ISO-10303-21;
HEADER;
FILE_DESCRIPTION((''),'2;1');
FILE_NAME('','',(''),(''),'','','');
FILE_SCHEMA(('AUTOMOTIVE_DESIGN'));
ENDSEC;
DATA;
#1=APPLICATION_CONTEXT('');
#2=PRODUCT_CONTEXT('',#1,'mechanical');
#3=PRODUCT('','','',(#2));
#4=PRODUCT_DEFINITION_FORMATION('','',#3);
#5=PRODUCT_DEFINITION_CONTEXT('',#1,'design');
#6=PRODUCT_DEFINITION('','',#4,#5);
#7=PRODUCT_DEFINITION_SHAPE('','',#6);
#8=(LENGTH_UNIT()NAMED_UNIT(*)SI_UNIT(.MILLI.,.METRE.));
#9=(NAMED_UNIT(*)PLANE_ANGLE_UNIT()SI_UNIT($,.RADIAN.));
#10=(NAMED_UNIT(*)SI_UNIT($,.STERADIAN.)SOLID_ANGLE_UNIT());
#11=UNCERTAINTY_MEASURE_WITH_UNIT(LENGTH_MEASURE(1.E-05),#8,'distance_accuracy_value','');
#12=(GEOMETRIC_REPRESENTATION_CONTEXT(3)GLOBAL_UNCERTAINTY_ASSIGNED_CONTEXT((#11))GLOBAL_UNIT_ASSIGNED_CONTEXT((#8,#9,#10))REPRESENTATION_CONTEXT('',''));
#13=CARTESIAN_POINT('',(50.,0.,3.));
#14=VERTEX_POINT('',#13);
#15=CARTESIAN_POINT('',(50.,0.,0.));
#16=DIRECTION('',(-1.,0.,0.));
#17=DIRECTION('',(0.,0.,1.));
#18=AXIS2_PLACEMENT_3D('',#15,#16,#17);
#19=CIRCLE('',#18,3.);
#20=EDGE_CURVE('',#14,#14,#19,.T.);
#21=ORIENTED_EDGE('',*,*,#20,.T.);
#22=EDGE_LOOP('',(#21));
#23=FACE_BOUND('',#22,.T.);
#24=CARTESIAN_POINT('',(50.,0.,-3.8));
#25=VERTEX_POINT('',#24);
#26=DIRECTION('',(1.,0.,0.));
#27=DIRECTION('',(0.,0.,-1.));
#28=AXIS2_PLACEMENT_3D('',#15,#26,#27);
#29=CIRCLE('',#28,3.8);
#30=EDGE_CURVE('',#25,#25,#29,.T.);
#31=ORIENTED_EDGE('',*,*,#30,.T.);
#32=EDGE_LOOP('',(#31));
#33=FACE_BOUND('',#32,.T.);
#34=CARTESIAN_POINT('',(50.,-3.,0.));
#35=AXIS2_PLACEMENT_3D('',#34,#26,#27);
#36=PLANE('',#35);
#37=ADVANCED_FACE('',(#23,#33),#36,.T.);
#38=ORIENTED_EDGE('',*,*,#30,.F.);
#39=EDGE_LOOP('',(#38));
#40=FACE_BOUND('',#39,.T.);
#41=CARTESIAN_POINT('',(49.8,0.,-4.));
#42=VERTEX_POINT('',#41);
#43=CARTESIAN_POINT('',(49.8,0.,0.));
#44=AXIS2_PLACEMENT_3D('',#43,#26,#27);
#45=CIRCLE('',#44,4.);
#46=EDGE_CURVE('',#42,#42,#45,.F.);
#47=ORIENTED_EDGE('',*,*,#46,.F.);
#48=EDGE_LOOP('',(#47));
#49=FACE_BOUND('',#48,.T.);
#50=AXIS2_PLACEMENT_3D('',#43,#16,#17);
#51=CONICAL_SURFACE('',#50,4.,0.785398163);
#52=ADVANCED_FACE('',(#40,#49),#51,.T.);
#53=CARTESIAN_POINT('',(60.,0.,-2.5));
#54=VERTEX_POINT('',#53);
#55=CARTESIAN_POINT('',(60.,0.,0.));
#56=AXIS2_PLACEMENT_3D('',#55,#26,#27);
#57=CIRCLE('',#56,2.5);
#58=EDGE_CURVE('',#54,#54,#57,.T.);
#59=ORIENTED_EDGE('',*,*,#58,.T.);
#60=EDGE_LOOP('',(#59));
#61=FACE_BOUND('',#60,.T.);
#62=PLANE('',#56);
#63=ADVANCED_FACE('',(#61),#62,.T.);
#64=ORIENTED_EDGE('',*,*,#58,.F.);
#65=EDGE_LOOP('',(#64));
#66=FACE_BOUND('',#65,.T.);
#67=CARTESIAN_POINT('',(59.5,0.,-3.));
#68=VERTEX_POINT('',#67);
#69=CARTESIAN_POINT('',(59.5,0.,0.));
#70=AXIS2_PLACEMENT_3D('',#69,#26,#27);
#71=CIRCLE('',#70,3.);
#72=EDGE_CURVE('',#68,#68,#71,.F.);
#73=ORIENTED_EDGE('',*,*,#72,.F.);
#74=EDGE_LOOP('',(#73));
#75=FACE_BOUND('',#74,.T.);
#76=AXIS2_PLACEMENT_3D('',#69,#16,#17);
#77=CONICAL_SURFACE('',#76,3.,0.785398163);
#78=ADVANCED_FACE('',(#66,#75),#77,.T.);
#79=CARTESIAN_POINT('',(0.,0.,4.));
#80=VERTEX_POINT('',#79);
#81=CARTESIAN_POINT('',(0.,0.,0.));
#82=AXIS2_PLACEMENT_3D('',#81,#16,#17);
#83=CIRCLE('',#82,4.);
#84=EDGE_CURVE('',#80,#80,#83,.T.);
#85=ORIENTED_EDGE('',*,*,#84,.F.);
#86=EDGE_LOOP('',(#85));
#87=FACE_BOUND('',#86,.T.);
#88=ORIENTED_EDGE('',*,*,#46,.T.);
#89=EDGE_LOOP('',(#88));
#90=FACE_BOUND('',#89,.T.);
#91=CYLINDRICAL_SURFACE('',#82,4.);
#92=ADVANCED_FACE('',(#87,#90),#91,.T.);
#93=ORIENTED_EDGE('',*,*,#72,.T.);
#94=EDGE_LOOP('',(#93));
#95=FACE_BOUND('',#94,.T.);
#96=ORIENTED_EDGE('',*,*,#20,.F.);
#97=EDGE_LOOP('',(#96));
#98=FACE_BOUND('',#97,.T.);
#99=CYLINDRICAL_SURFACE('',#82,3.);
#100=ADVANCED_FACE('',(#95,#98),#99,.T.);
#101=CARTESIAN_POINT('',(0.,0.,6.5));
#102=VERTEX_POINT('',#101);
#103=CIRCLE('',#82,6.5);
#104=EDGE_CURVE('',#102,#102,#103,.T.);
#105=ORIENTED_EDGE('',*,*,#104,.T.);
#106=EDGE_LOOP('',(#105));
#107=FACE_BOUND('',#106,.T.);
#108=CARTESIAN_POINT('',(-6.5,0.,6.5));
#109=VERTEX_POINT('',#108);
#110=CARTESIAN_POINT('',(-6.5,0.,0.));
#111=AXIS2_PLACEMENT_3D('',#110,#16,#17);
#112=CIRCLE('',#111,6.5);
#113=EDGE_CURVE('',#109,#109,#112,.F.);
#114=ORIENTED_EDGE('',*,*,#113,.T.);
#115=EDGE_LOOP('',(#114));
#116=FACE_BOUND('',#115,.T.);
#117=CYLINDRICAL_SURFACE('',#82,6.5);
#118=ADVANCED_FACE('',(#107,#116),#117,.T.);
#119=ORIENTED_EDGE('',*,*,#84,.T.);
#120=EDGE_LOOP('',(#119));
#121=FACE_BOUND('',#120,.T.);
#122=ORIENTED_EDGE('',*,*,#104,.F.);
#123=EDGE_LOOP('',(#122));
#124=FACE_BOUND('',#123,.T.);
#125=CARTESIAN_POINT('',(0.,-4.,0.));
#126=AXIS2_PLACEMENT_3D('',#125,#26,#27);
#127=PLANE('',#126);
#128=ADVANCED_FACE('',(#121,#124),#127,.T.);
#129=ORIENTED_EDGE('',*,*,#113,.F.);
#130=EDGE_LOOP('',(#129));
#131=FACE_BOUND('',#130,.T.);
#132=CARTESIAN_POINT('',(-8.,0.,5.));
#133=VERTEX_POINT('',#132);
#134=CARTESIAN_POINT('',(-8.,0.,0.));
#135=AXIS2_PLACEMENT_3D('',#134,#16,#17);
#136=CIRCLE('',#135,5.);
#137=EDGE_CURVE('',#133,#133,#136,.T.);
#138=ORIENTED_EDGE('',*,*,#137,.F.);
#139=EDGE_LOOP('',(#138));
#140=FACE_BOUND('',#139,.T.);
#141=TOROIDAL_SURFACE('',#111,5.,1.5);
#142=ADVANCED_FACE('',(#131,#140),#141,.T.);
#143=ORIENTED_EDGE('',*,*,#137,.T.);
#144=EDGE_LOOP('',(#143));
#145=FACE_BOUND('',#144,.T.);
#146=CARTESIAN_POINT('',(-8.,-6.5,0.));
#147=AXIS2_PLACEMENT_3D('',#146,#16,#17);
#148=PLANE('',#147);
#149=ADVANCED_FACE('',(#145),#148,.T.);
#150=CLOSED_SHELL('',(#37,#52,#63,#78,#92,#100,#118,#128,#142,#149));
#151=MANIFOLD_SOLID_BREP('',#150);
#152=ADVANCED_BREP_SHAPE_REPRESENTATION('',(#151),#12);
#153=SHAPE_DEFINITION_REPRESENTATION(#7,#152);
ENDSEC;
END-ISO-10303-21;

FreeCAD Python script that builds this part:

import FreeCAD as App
import Part
import Sketcher

V = App.Vector
Q = App.Units.Quantity


def edges_at(feature, points):
    """Names of the edges that pass closest to the given points."""
    edges = feature.Shape.Edges
    near = lambda p: min(range(len(edges)), key=lambda i: edges[i].distToShape(Part.Vertex(*p))[0])
    return sorted({f"Edge{near(p) + 1}" for p in points})


def add_polygon(sketch, points):
    """Adds a closed chain of lines whose ends are joined by coincident constraints."""
    first, n = sketch.GeometryCount, len(points)
    for a, b in zip(points, points[1:] + points[:1]):
        sketch.addGeometry(Part.LineSegment(App.Vector(*a, 0), App.Vector(*b, 0)), False)
    for i in range(n):
        sketch.addConstraint(Sketcher.Constraint("Coincident", first + i, 2, first + (i + 1) % n, 1))

doc = App.newDocument("Part")
body = doc.addObject("PartDesign::Body", "Body")

# Sketch on XY plane
sketch1 = body.newObject("Sketcher::SketchObject", "Sketch")
sketch1.AttachmentSupport = (doc.getObject("XY_Plane"), [""])
sketch1.MapMode = "FlatFace"
add_polygon(sketch1, [(60, -3), (60, 0), (-8, 0), (-8, -6.5), (0, -6.5), (0, -4), (50, -4), (50, -3)])  # lines 0-7
sketch1.addConstraint([
    Sketcher.Constraint("Vertical", 0),
    Sketcher.Constraint("Horizontal", 1),
    Sketcher.Constraint("Vertical", 2),
    Sketcher.Constraint("Horizontal", 3),
    Sketcher.Constraint("Vertical", 4),
    Sketcher.Constraint("Horizontal", 5),
    Sketcher.Constraint("Vertical", 6),
    Sketcher.Constraint("Horizontal", 7),
    Sketcher.Constraint("PointOnObject", 0, 2, -1),
    Sketcher.Constraint("PointOnObject", 3, 2, -2),
    Sketcher.Constraint("DistanceX", 1, 2, 1, 1, Q("68 mm")),
    Sketcher.Constraint("DistanceX", 3, 1, 3, 2, Q("8 mm")),
    Sketcher.Constraint("DistanceX", 5, 1, 5, 2, Q("50 mm")),
    Sketcher.Constraint("DistanceY", 0, 1, 0, 2, Q("3 mm")),
    Sketcher.Constraint("DistanceY", 6, 1, 6, 2, Q("1 mm")),
    Sketcher.Constraint("DistanceY", 2, 2, 2, 1, Q("6.5 mm")),
])
revolution = body.newObject("PartDesign::Revolution", "Revolution")
revolution.Profile = sketch1
revolution.ReferenceAxis = (sketch1, ["H_Axis"])
revolution.Angle = 360
doc.recompute()

chamfer = body.newObject("PartDesign::Chamfer", "Chamfer")
chamfer.Base = (revolution, edges_at(revolution, [(60, 0, -3)]))
chamfer.Size = 0.5
doc.recompute()

fillet = body.newObject("PartDesign::Fillet", "Fillet")
fillet.Base = (chamfer, edges_at(chamfer, [(-8, 0, -6.5)]))
fillet.Radius = 1.5
doc.recompute()

chamfer2 = body.newObject("PartDesign::Chamfer", "Chamfer001")
chamfer2.Base = (fillet, edges_at(fillet, [(50, 0, -4)]))
chamfer2.Size = 0.2

doc.recompute()
